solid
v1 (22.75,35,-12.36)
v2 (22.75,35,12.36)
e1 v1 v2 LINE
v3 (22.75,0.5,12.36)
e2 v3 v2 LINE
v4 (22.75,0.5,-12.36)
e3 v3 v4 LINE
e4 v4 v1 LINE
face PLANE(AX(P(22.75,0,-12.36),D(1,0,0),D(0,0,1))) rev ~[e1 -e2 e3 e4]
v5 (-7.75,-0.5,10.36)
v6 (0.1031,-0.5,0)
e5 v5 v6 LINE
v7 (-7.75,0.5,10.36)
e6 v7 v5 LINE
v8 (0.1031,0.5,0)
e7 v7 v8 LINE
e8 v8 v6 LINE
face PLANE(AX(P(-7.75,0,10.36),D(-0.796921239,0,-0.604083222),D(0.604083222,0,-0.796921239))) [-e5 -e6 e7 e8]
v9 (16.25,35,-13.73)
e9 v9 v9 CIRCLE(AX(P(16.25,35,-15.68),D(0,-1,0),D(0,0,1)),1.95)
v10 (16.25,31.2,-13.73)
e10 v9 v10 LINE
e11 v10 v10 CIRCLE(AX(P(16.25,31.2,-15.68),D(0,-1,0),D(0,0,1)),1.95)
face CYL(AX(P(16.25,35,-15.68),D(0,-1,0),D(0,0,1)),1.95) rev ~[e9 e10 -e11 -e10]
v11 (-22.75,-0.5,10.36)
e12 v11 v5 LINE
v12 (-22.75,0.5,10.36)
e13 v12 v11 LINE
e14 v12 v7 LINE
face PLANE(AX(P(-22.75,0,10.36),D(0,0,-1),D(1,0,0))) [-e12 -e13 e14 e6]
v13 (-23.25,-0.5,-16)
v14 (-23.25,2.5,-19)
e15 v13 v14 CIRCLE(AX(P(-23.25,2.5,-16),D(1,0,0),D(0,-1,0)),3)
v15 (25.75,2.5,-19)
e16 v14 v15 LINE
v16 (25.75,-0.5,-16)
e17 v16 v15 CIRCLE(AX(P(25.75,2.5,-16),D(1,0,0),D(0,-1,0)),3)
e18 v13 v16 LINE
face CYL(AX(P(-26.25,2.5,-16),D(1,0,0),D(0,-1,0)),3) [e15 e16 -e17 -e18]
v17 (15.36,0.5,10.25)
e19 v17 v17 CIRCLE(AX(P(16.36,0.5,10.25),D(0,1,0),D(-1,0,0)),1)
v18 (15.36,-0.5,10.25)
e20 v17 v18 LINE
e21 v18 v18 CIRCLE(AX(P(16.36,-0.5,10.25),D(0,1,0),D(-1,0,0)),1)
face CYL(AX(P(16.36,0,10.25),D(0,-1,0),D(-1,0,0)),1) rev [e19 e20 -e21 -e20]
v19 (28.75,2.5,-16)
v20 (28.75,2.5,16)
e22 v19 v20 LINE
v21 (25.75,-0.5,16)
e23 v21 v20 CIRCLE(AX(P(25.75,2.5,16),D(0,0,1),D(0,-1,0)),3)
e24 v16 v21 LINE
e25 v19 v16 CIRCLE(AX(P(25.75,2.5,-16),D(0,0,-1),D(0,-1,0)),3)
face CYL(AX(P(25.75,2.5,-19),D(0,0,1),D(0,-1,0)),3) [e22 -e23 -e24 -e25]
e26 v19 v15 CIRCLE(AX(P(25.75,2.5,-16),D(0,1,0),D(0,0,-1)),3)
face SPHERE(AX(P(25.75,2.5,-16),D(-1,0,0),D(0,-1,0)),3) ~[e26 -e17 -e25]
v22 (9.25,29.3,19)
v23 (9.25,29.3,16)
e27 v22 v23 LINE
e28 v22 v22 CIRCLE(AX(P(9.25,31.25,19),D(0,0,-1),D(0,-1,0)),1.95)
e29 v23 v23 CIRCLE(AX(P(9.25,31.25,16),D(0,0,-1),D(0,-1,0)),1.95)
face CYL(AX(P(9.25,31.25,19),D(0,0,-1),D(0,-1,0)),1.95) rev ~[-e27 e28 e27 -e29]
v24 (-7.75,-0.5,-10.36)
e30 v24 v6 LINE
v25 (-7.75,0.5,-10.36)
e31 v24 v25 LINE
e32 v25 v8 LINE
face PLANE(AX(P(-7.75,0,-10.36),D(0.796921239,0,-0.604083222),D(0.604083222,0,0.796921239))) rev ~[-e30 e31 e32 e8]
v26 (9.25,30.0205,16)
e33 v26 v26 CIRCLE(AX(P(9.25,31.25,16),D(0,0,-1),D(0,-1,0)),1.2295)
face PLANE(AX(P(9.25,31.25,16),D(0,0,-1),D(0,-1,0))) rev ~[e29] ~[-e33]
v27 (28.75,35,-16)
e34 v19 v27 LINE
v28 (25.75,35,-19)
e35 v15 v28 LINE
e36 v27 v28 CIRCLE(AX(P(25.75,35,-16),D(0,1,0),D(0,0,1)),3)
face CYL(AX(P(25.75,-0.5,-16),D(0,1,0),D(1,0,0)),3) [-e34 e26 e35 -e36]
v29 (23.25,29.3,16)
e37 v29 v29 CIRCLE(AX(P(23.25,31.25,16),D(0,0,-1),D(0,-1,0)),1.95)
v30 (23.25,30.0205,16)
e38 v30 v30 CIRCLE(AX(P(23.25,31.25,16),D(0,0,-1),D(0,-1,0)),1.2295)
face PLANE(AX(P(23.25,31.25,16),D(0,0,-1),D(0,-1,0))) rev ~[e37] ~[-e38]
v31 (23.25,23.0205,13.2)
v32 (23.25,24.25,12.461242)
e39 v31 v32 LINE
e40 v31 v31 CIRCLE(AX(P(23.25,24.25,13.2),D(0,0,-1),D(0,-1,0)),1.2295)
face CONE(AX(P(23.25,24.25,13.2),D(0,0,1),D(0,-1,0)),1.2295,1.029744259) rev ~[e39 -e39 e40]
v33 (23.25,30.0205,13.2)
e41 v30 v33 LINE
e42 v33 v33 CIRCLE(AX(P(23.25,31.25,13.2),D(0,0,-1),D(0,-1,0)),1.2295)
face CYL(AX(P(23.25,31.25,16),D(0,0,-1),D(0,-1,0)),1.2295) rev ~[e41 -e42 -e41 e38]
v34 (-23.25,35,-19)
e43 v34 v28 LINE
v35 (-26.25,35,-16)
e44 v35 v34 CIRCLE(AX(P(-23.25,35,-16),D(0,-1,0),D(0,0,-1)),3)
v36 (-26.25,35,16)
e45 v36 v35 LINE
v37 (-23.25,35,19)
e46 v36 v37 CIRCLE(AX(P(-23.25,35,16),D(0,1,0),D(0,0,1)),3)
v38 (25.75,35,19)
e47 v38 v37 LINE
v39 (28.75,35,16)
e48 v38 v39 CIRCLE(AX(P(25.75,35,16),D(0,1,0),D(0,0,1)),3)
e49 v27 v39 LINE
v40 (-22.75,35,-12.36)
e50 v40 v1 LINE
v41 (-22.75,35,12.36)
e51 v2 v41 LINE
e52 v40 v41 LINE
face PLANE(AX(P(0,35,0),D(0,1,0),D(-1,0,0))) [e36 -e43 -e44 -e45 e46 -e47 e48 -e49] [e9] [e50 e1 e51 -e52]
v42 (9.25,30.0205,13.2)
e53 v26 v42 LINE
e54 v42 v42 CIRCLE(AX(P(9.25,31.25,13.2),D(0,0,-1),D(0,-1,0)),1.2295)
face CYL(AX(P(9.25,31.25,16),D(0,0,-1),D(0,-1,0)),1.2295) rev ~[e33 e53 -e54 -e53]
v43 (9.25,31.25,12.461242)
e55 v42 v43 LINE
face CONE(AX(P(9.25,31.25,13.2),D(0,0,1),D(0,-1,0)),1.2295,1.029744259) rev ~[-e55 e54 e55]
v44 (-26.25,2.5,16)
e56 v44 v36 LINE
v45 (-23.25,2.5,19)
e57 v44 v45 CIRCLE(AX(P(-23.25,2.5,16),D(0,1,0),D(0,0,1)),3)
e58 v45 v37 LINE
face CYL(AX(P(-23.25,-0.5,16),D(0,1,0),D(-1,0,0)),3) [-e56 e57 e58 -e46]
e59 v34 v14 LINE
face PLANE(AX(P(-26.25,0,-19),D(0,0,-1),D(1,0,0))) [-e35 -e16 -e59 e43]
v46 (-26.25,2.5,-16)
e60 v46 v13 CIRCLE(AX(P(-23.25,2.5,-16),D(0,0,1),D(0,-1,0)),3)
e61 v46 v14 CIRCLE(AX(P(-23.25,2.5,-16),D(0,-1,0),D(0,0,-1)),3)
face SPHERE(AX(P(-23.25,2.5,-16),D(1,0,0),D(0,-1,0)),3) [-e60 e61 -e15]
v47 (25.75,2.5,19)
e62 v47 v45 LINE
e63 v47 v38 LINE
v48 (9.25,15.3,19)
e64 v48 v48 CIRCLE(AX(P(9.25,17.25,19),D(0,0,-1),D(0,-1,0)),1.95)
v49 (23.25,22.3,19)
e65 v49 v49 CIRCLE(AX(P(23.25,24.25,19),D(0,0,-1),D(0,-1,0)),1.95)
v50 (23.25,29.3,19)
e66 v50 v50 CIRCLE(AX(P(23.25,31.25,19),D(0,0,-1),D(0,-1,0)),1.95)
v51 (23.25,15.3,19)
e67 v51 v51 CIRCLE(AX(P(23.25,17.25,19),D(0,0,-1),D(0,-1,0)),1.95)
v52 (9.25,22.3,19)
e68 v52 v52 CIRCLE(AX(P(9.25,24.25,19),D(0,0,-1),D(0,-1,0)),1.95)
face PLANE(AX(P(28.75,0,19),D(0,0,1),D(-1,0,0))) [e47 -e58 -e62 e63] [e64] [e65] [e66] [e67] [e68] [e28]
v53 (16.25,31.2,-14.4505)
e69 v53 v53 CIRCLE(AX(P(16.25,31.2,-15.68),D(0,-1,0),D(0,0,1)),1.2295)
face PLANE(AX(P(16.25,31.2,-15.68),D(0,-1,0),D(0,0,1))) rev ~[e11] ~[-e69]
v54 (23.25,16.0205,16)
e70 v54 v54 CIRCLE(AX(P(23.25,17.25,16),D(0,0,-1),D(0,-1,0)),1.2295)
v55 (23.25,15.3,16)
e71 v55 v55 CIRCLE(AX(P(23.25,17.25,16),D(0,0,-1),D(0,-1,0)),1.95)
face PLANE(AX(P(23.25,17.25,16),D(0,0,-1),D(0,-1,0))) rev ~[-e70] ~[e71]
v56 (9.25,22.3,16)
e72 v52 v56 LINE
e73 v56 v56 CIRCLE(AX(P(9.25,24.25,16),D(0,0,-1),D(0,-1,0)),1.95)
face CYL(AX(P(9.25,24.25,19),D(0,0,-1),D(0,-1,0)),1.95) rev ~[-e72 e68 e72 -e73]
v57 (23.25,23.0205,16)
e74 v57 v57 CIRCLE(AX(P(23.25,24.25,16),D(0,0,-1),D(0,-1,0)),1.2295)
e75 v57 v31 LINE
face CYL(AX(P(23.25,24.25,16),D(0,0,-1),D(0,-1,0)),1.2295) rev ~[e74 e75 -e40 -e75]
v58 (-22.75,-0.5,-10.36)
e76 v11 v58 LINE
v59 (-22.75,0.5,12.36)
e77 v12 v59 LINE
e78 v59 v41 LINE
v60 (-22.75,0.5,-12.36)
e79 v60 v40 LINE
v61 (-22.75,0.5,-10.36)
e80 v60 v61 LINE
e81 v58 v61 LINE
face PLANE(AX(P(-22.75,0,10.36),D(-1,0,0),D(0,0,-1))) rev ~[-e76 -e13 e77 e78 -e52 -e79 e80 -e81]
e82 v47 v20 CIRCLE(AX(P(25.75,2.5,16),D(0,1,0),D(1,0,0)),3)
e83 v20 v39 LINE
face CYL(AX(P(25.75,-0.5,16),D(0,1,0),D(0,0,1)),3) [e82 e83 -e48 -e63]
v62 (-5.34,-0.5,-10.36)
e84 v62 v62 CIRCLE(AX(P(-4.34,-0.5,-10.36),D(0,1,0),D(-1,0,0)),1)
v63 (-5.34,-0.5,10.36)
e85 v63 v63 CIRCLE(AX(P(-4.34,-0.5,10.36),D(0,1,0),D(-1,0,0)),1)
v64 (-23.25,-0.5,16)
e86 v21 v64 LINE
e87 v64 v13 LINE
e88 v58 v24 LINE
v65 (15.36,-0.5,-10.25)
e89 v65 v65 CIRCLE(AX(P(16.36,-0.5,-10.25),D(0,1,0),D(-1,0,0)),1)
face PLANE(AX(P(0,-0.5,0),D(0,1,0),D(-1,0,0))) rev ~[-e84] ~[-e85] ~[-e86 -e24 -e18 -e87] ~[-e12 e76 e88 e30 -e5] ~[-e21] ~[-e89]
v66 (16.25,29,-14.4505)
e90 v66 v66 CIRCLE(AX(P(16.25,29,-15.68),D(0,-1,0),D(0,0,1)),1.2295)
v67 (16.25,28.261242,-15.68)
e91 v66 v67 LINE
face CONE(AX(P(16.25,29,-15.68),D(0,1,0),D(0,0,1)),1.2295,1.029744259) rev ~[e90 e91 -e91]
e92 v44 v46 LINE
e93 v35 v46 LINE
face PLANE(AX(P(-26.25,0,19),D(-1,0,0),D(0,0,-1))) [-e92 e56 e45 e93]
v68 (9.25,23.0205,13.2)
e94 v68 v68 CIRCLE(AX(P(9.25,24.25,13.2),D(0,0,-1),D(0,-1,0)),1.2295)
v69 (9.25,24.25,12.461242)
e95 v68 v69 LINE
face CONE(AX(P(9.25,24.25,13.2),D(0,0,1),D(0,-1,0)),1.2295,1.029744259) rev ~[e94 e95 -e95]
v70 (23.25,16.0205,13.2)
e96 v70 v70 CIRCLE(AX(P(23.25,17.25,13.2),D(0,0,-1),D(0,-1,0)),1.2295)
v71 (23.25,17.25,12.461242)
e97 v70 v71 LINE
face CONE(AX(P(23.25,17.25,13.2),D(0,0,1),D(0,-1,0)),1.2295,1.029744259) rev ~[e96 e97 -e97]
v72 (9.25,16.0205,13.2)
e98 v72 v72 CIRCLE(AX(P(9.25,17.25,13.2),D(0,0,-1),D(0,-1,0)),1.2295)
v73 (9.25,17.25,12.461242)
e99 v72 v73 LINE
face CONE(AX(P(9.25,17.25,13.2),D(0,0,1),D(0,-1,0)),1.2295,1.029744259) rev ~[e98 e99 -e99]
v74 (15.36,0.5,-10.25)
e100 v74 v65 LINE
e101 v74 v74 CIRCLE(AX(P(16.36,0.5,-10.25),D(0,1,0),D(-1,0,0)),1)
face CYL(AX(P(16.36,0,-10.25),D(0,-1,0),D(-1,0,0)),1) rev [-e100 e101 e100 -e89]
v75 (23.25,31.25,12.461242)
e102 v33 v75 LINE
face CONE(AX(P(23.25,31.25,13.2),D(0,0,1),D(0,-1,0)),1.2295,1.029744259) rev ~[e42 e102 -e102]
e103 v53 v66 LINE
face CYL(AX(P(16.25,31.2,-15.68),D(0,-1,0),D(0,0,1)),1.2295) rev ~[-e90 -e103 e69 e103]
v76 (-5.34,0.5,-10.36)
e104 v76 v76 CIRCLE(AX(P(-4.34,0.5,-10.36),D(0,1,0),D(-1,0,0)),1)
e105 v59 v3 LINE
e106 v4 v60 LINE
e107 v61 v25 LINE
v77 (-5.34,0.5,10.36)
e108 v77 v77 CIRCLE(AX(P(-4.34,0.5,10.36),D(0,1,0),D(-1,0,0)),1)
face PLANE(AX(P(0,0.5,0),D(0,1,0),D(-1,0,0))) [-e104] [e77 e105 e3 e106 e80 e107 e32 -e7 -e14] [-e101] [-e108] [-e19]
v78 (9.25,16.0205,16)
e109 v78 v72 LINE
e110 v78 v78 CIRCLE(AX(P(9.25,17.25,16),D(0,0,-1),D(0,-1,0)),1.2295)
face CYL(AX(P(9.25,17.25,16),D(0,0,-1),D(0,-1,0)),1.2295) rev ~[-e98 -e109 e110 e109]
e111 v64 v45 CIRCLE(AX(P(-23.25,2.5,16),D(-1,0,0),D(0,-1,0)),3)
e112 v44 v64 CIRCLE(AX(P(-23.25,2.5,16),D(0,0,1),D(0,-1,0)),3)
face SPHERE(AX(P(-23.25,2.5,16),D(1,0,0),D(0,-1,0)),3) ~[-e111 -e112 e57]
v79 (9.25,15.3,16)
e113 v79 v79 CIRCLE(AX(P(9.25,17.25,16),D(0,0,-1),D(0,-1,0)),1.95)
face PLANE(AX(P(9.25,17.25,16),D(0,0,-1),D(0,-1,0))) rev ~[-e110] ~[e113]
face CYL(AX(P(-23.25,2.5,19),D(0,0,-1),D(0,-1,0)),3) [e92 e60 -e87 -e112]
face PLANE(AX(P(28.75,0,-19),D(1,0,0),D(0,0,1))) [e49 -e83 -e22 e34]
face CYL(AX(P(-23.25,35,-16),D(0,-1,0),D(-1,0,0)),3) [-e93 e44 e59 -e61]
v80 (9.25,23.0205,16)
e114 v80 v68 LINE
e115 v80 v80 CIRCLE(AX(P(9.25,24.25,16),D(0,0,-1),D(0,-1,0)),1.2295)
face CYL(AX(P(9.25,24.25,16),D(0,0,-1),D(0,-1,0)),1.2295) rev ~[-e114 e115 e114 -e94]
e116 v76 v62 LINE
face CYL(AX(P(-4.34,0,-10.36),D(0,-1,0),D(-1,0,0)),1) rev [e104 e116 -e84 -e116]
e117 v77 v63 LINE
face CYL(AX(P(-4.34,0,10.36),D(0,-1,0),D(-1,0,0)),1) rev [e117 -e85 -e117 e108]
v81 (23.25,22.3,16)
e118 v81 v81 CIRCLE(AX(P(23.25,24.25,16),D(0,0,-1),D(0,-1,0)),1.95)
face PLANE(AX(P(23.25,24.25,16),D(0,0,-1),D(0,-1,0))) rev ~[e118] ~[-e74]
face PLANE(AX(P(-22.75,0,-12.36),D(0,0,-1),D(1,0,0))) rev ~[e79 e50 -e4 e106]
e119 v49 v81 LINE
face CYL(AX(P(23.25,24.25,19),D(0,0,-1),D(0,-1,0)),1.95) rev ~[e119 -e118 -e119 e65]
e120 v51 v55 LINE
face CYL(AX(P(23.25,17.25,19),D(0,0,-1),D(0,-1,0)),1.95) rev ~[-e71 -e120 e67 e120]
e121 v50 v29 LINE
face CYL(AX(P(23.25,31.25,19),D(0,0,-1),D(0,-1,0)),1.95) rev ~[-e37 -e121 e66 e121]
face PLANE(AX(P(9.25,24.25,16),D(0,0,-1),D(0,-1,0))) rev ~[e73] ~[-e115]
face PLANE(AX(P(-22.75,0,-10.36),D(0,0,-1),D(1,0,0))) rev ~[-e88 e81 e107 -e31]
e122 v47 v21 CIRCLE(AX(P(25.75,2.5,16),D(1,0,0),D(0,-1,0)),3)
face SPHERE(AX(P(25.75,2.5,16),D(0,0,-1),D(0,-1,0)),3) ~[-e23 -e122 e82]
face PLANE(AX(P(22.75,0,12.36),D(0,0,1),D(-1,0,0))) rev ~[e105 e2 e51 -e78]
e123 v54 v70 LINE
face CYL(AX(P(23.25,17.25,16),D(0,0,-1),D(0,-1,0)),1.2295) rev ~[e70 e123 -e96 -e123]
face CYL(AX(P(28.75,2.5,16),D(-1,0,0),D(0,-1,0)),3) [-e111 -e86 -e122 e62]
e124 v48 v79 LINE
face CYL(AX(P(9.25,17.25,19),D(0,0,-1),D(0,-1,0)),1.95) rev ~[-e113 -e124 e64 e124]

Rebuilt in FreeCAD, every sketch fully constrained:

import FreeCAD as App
import Part
import Sketcher
from FreeCAD import Vector
Q = App.Units.Quantity


def edges_at(feature, points):
    """Names of the edges that pass closest to the given points."""
    edges = feature.Shape.Edges
    near = lambda p: min(range(len(edges)), key=lambda i: edges[i].distToShape(Part.Vertex(*p))[0])
    return sorted({f"Edge{near(p) + 1}" for p in points})

doc = App.newDocument("Part")
body = doc.addObject("PartDesign::Body", "Body")

# Sketch on XZ plane
sketch1 = body.newObject("Sketcher::SketchObject", "Sketch")
sketch1.AttachmentSupport = (doc.getObject("XZ_Plane"), [""])
sketch1.MapMode = "FlatFace"
sketch1.addGeometry([
    Part.LineSegment(Vector(-26.2, -19, 0), Vector(-26.2, 19, 0)),  # 0
    Part.LineSegment(Vector(-26.2, 19, 0), Vector(28.8, 19, 0)),  # 1
    Part.LineSegment(Vector(28.8, 19, 0), Vector(28.8, -19, 0)),  # 2
    Part.LineSegment(Vector(28.8, -19, 0), Vector(-26.2, -19, 0)),  # 3
    Part.LineSegment(Vector(-7.8, 10.4, 0), Vector(-22.8, 10.4, 0)),  # 4
    Part.LineSegment(Vector(-22.8, 10.4, 0), Vector(-22.8, -10.4, 0)),  # 5
    Part.LineSegment(Vector(-22.8, -10.4, 0), Vector(-7.8, -10.4, 0)),  # 6
    Part.LineSegment(Vector(-7.8, -10.4, 0), Vector(0.1, 0, 0)),  # 7
    Part.LineSegment(Vector(0.1, 0, 0), Vector(-7.8, 10.4, 0)),  # 8
    Part.Circle(Vector(16.4, -10.2, 0), Vector(0, 0, 1), 1),  # 9
    Part.Circle(Vector(-4.3, -10.4, 0), Vector(0, 0, 1), 1),  # 10
    Part.Circle(Vector(16.4, 10.2, 0), Vector(0, 0, 1), 1),  # 11
    Part.Circle(Vector(-4.3, 10.4, 0), Vector(0, 0, 1), 1),  # 12
], False)
sketch1.addConstraint([
    Sketcher.Constraint("Coincident", 0, 2, 1, 1),
    Sketcher.Constraint("Coincident", 1, 2, 2, 1),
    Sketcher.Constraint("Coincident", 2, 2, 3, 1),
    Sketcher.Constraint("Coincident", 3, 2, 0, 1),
    Sketcher.Constraint("Coincident", 4, 2, 5, 1),
    Sketcher.Constraint("Coincident", 5, 2, 6, 1),
    Sketcher.Constraint("Coincident", 6, 2, 7, 1),
    Sketcher.Constraint("Coincident", 7, 2, 8, 1),
    Sketcher.Constraint("Coincident", 8, 2, 4, 1),
    Sketcher.Constraint("Vertical", 0),
    Sketcher.Constraint("Horizontal", 1),
    Sketcher.Constraint("Vertical", 2),
    Sketcher.Constraint("Horizontal", 3),
    Sketcher.Constraint("Horizontal", 4),
    Sketcher.Constraint("Vertical", 5),
    Sketcher.Constraint("Horizontal", 6),
    Sketcher.Constraint("Equal", 9, 10),
    Sketcher.Constraint("Equal", 10, 11),
    Sketcher.Constraint("Equal", 11, 12),
    Sketcher.Constraint("Symmetric", 9, 3, 11, 3, -1),
    Sketcher.Constraint("Symmetric", 10, 3, 12, 3, -1),
    Sketcher.Constraint("Symmetric", 6, 2, 8, 2, -1),
    Sketcher.Constraint("PointOnObject", 7, 2, -1),
    Sketcher.Constraint("Horizontal", 12, 3, 4, 2),
    Sketcher.Constraint("Diameter", 9, Q("2 mm")),
    Sketcher.Constraint("DistanceX", 1, 1, 1, 2, Q("55 mm")),
    Sketcher.Constraint("DistanceX", 4, 2, 4, 1, Q("15 mm")),
    Sketcher.Constraint("DistanceY", 0, 1, 0, 2, Q("38 mm")),
    Sketcher.Constraint("Distance", 7, Q("13 mm")),
    Sketcher.Constraint("DistanceX", 10, 3, 9, 3, Q("20.7 mm")),
    Sketcher.Constraint("DistanceY", 9, 3, 11, 3, Q("20.5 mm")),
    Sketcher.Constraint("DistanceX", 0, 2, 4, 2, Q("3.5 mm")),
    Sketcher.Constraint("DistanceX", 4, 2, 12, 3, Q("18.41 mm")),
    Sketcher.Constraint("DistanceY", -1, 1, 0, 2, Q("19 mm")),
    Sketcher.Constraint("DistanceY", 5, 2, 5, 1, Q("20.72 mm")),
    Sketcher.Constraint("DistanceX", -1, 1, 9, 3, Q("16.36 mm")),
])
pad1 = body.newObject("PartDesign::Pad", "Pad")
pad1.Profile = sketch1
pad1.Length = 1
pad1.Midplane = True

# Sketch on XZ plane
sketch2 = body.newObject("Sketcher::SketchObject", "Sketch001")
sketch2.AttachmentSupport = (doc.getObject("XZ_Plane"), [""])
sketch2.MapMode = "FlatFace"
sketch2.addGeometry([
    Part.LineSegment(Vector(-26, -19, 0), Vector(-26, 19, 0)),  # 0
    Part.LineSegment(Vector(-26, 19, 0), Vector(29, 19, 0)),  # 1
    Part.LineSegment(Vector(29, 19, 0), Vector(29, -19, 0)),  # 2
    Part.LineSegment(Vector(29, -19, 0), Vector(-26, -19, 0)),  # 3
    Part.LineSegment(Vector(-23, 12, 0), Vector(-23, -12, 0)),  # 4
    Part.LineSegment(Vector(-23, -12, 0), Vector(23, -12, 0)),  # 5
    Part.LineSegment(Vector(23, -12, 0), Vector(23, 12, 0)),  # 6
    Part.LineSegment(Vector(23, 12, 0), Vector(-23, 12, 0)),  # 7
], False)
sketch2.addConstraint([
    Sketcher.Constraint("Coincident", 0, 2, 1, 1),
    Sketcher.Constraint("Coincident", 1, 2, 2, 1),
    Sketcher.Constraint("Coincident", 2, 2, 3, 1),
    Sketcher.Constraint("Coincident", 3, 2, 0, 1),
    Sketcher.Constraint("Coincident", 4, 2, 5, 1),
    Sketcher.Constraint("Coincident", 5, 2, 6, 1),
    Sketcher.Constraint("Coincident", 6, 2, 7, 1),
    Sketcher.Constraint("Coincident", 7, 2, 4, 1),
    Sketcher.Constraint("Vertical", 0),
    Sketcher.Constraint("Horizontal", 1),
    Sketcher.Constraint("Vertical", 2),
    Sketcher.Constraint("Horizontal", 3),
    Sketcher.Constraint("Vertical", 4),
    Sketcher.Constraint("Horizontal", 5),
    Sketcher.Constraint("Vertical", 6),
    Sketcher.Constraint("Horizontal", 7),
    Sketcher.Constraint("Symmetric", 4, 2, 6, 2, -1, 1),
    Sketcher.Constraint("DistanceX", 1, 1, 1, 2, Q("55 mm")),
    Sketcher.Constraint("DistanceY", 0, 1, 0, 2, Q("38 mm")),
    Sketcher.Constraint("DistanceX", 5, 1, 5, 2, Q("45.5 mm")),
    Sketcher.Constraint("DistanceY", 4, 2, 4, 1, Q("24.72 mm")),
    Sketcher.Constraint("DistanceX", 3, 2, 4, 2, Q("3.5 mm")),
    Sketcher.Constraint("DistanceY", -1, 1, 0, 2, Q("19 mm")),
])
pad2 = body.newObject("PartDesign::Pad", "Pad001")
pad2.Profile = sketch2
pad2.Length = 35
pad2.Reversed = True
doc.recompute()

fillet = body.newObject("PartDesign::Fillet", "Fillet")
fillet.Base = (pad2, edges_at(pad2, [
    (1.25, -0.5, -19),
    (28.75, -0.5, 0),
    (1.25, -0.5, 19),
    (-26.25, -0.5, 0),
    (28.75, 17.25, -19),
    (28.75, 17.25, 19),
    (-26.25, 17.25, 19),
    (-26.25, 17.25, -19),
]))
fillet.Radius = 3

# Sketch on XY plane
sketch3 = body.newObject("Sketcher::SketchObject", "Sketch002")
sketch3.AttachmentSupport = (doc.getObject("XY_Plane"), [""])
sketch3.MapMode = "FlatFace"
sketch3.AttachmentOffset = App.Placement(Vector(0, 0, 19), App.Rotation())
sketch3.addGeometry([
    Part.Circle(Vector(23.2, 17.2, 0), Vector(0, 0, 1), 1.2),  # 0
    Part.Circle(Vector(9.2, 17.2, 0), Vector(0, 0, 1), 1.2),  # 1
    Part.Circle(Vector(9.2, 24.2, 0), Vector(0, 0, 1), 1.2),  # 2
    Part.Circle(Vector(23.2, 24.2, 0), Vector(0, 0, 1), 1.2),  # 3
    Part.Circle(Vector(23.2, 31.2, 0), Vector(0, 0, 1), 1.2),  # 4
    Part.Circle(Vector(9.2, 31.2, 0), Vector(0, 0, 1), 1.2),  # 5
], False)
sketch3.addConstraint([
    Sketcher.Constraint("Equal", 0, 1),
    Sketcher.Constraint("Equal", 1, 2),
    Sketcher.Constraint("Equal", 2, 3),
    Sketcher.Constraint("Equal", 3, 4),
    Sketcher.Constraint("Equal", 4, 5),
    Sketcher.Constraint("Horizontal", 0, 3, 1, 3),
    Sketcher.Constraint("Horizontal", 2, 3, 3, 3),
    Sketcher.Constraint("Horizontal", 4, 3, 5, 3),
    Sketcher.Constraint("Vertical", 1, 3, 2, 3),
    Sketcher.Constraint("Vertical", 0, 3, 3, 3),
    Sketcher.Constraint("Vertical", 3, 3, 4, 3),
    Sketcher.Constraint("Vertical", 2, 3, 5, 3),
    Sketcher.Constraint("Diameter", 0, Q("2.459 mm")),
    Sketcher.Constraint("DistanceX", 1, 3, 0, 3, Q("14 mm")),
    Sketcher.Constraint("DistanceY", 1, 3, 2, 3, Q("7 mm")),
    Sketcher.Constraint("DistanceY", 3, 3, 4, 3, Q("7 mm")),
    Sketcher.Constraint("DistanceX", -1, 1, 0, 3, Q("23.25 mm")),
    Sketcher.Constraint("DistanceY", -1, 1, 0, 3, Q("17.25 mm")),
])
doc.recompute()
hole = body.newObject("PartDesign::Hole", "Hole")
hole.Profile = sketch3
hole.ThreadType = "None"
hole.Diameter = 2.459
hole.DepthType = "Dimension"
hole.Depth = 5.8
hole.DrillPoint = "Angled"
hole.DrillPointAngle = 118
hole.HoleCutType = "Counterbore"
hole.HoleCutDiameter = 3.9
hole.HoleCutDepth = 3

# Sketch on XZ plane
sketch4 = body.newObject("Sketcher::SketchObject", "Sketch003")
sketch4.AttachmentSupport = (doc.getObject("XZ_Plane"), [""])
sketch4.MapMode = "FlatFace"
sketch4.AttachmentOffset = App.Placement(Vector(0, 0, -35), App.Rotation())
sketch4.addGeometry(Part.Circle(Vector(16.2, -15.7, 0), Vector(0, 0, 1), 1.2), False)
sketch4.addConstraint([
    Sketcher.Constraint("Diameter", 0, Q("2.459 mm")),
    Sketcher.Constraint("DistanceX", -1, 1, 0, 3, Q("16.25 mm")),
    Sketcher.Constraint("DistanceY", 0, 3, -1, 1, Q("15.68 mm")),
])
doc.recompute()
hole2 = body.newObject("PartDesign::Hole", "Hole001")
hole2.Profile = sketch4
hole2.ThreadType = "None"
hole2.Diameter = 2.459
hole2.DepthType = "Dimension"
hole2.Depth = 6
hole2.DrillPoint = "Angled"
hole2.DrillPointAngle = 118
hole2.HoleCutType = "Counterbore"
hole2.HoleCutDiameter = 3.9
hole2.HoleCutDepth = 3.8
hole2.Reversed = True

doc.recompute()
